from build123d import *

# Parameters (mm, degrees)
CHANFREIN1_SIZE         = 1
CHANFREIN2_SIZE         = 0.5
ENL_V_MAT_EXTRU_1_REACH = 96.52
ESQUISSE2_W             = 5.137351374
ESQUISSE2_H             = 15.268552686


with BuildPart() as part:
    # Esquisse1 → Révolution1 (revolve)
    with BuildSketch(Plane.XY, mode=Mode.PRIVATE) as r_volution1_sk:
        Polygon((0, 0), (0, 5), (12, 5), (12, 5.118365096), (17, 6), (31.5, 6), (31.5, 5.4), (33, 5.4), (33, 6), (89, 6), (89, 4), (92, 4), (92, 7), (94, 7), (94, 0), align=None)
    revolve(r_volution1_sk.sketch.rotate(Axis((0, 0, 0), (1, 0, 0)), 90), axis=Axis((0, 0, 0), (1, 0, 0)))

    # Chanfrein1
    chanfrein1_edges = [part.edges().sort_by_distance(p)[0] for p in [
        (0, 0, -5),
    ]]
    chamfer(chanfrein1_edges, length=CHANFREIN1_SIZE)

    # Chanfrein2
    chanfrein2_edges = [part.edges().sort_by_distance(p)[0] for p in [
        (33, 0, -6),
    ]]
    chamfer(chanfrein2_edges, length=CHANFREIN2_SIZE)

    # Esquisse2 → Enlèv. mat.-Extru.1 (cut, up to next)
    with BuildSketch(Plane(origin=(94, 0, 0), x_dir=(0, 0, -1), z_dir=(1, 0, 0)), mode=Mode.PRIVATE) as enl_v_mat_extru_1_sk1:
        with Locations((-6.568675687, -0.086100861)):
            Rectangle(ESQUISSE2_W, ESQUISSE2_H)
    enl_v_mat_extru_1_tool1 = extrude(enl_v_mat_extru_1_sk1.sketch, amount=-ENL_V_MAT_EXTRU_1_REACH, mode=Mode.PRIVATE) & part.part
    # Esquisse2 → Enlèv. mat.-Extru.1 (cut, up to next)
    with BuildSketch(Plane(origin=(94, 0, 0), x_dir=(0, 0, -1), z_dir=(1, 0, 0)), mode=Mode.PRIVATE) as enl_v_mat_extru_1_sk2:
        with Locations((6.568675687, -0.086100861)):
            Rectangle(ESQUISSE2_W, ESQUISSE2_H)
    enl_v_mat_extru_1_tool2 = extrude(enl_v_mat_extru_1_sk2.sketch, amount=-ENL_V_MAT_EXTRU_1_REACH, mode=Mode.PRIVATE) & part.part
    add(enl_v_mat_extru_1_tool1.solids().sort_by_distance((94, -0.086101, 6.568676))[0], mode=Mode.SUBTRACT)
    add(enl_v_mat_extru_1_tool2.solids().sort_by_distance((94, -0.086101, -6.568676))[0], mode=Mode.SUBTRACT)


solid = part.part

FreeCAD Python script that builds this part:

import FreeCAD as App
import Part
import Sketcher

V = App.Vector
Q = App.Units.Quantity


def edges_at(feature, points):
    """Names of the edges that pass closest to the given points."""
    edges = feature.Shape.Edges
    near = lambda p: min(range(len(edges)), key=lambda i: edges[i].distToShape(Part.Vertex(*p))[0])
    return sorted({f"Edge{near(p) + 1}" for p in points})

doc = App.newDocument("Part")
body = doc.addObject("PartDesign::Body", "Body")

# Sketch on XY plane
sketch1 = body.newObject("Sketcher::SketchObject", "Sketch")
sketch1.AttachmentSupport = (doc.getObject("XY_Plane"), [""])
sketch1.MapMode = "FlatFace"
sketch1.addGeometry([
    Part.LineSegment(V(0, 5, 0), V(0, 0, 0)),  # 0
    Part.LineSegment(V(0, 0, 0), V(94, 0, 0)),  # 1
    Part.LineSegment(V(94, 0, 0), V(94, 7, 0)),  # 2
    Part.LineSegment(V(94, 7, 0), V(92, 7, 0)),  # 3
    Part.LineSegment(V(92, 7, 0), V(92, 4, 0)),  # 4
    Part.LineSegment(V(92, 4, 0), V(89, 4, 0)),  # 5
    Part.LineSegment(V(89, 4, 0), V(89, 6, 0)),  # 6
    Part.LineSegment(V(89, 6, 0), V(33, 6, 0)),  # 7
    Part.LineSegment(V(33, 6, 0), V(33, 5.4, 0)),  # 8
    Part.LineSegment(V(33, 5.4, 0), V(31.5, 5.4, 0)),  # 9
    Part.LineSegment(V(31.5, 5.4, 0), V(31.5, 6, 0)),  # 10
    Part.LineSegment(V(31.5, 6, 0), V(17, 6, 0)),  # 11
    Part.LineSegment(V(17, 6, 0), V(12, 5.118365, 0)),  # 12
    Part.LineSegment(V(12, 5.118365, 0), V(12, 5, 0)),  # 13
    Part.LineSegment(V(12, 5, 0), V(0, 5, 0)),  # 14
], False)
sketch1.addConstraint([
    Sketcher.Constraint("Coincident", 0, 2, 1, 1),
    Sketcher.Constraint("Coincident", 1, 2, 2, 1),
    Sketcher.Constraint("Coincident", 2, 2, 3, 1),
    Sketcher.Constraint("Coincident", 3, 2, 4, 1),
    Sketcher.Constraint("Coincident", 4, 2, 5, 1),
    Sketcher.Constraint("Coincident", 5, 2, 6, 1),
    Sketcher.Constraint("Coincident", 6, 2, 7, 1),
    Sketcher.Constraint("Coincident", 7, 2, 8, 1),
    Sketcher.Constraint("Coincident", 8, 2, 9, 1),
    Sketcher.Constraint("Coincident", 9, 2, 10, 1),
    Sketcher.Constraint("Coincident", 10, 2, 11, 1),
    Sketcher.Constraint("Coincident", 11, 2, 12, 1),
    Sketcher.Constraint("Coincident", 12, 2, 13, 1),
    Sketcher.Constraint("Coincident", 13, 2, 14, 1),
    Sketcher.Constraint("Coincident", 14, 2, 0, 1),
    Sketcher.Constraint("Vertical", 0),
    Sketcher.Constraint("Horizontal", 1),
    Sketcher.Constraint("Vertical", 2),
    Sketcher.Constraint("Horizontal", 3),
    Sketcher.Constraint("Vertical", 4),
    Sketcher.Constraint("Horizontal", 5),
    Sketcher.Constraint("Vertical", 6),
    Sketcher.Constraint("Horizontal", 7),
    Sketcher.Constraint("Vertical", 8),
    Sketcher.Constraint("Horizontal", 9),
    Sketcher.Constraint("Vertical", 10),
    Sketcher.Constraint("Horizontal", 11),
    Sketcher.Constraint("Vertical", 13),
    Sketcher.Constraint("Horizontal", 14),
    Sketcher.Constraint("Coincident", 0, 2, -1, 1),
    Sketcher.Constraint("Horizontal", 7, 2, 10, 2),
    Sketcher.Constraint("Equal", 5, 4),
    Sketcher.Constraint("Equal", 3, 6),
    Sketcher.Constraint("DistanceX", 1, 1, 1, 2, 94.0),
    Sketcher.Constraint("DistanceX", 3, 2, 3, 1, 2.0),
    Sketcher.Constraint("DistanceX", 5, 2, 5, 1, 3.0),
    Sketcher.Constraint("DistanceX", 7, 2, 7, 1, 56.0),
    Sketcher.Constraint("DistanceX", 14, 2, 14, 1, 12.0),
    Sketcher.Constraint("DistanceY", 0, 2, 0, 1, 5.0),
    Sketcher.Constraint("DistanceY", 2, 1, 2, 2, 7.0),
    Sketcher.Constraint("Angle", 12, Q("-170 deg")),
    Sketcher.Constraint("DistanceX", 9, 2, 9, 1, 1.5),
    Sketcher.Constraint("DistanceX", 11, 2, 11, 1, 14.5),
    Sketcher.Constraint("DistanceY", 8, 2, 8, 1, 0.6),
])
revolution = body.newObject("PartDesign::Revolution", "Revolution")
revolution.Profile = sketch1
revolution.ReferenceAxis = (sketch1, ["H_Axis"])
revolution.Angle = 360
doc.recompute()

chamfer = body.newObject("PartDesign::Chamfer", "Chamfer")
chamfer.Base = (revolution, edges_at(revolution, [(0, 0, -5)]))
chamfer.Size = 1
doc.recompute()

chamfer2 = body.newObject("PartDesign::Chamfer", "Chamfer001")
chamfer2.Base = (chamfer, edges_at(chamfer, [(33, 0, -6)]))
chamfer2.Size = 0.5

# Sketch on YZ plane
sketch2 = body.newObject("Sketcher::SketchObject", "Sketch001")
sketch2.AttachmentSupport = (doc.getObject("YZ_Plane"), [""])
sketch2.MapMode = "FlatFace"
sketch2.AttachmentOffset = App.Placement(V(0, 0, 94), App.Rotation())
sketch2.addGeometry([
    Part.LineSegment(V(7.548175, 9.137351, 0), V(-7.720377, 9.137351, 0)),
    Part.LineSegment(V(-7.720377, 9.137351, 0), V(-7.720377, 4, 0)),
    Part.LineSegment(V(-7.720377, 4, 0), V(7.548175, 4, 0)),
    Part.LineSegment(V(7.548175, 4, 0), V(7.548175, 9.137351, 0)),
], False)
sketch2.addConstraint([
    Sketcher.Constraint("Coincident", 0, 2, 1, 1),
    Sketcher.Constraint("Coincident", 1, 2, 2, 1),
    Sketcher.Constraint("Coincident", 2, 2, 3, 1),
    Sketcher.Constraint("Coincident", 3, 2, 0, 1),
    Sketcher.Constraint("Horizontal", 0),
    Sketcher.Constraint("Vertical", 1),
    Sketcher.Constraint("Horizontal", 2),
    Sketcher.Constraint("Vertical", 3),
    Sketcher.Constraint("DistanceY", -1, 1, 1, 2, 4.0),
    Sketcher.Constraint("DistanceY", 1, 2, 1, 1, 5.137351),
    Sketcher.Constraint("DistanceX", 0, 2, 0, 1, 15.268553),
    Sketcher.Constraint("DistanceX", 0, 2, -1, 1, 7.720377),
])
pocket1 = body.newObject("PartDesign::Pocket", "Pocket")
pocket1.Profile = sketch2
pocket1.Type = "UpToFirst"

# Sketch on YZ plane
sketch3 = body.newObject("Sketcher::SketchObject", "Sketch002")
sketch3.AttachmentSupport = (doc.getObject("YZ_Plane"), [""])
sketch3.MapMode = "FlatFace"
sketch3.AttachmentOffset = App.Placement(V(0, 0, 94), App.Rotation())
sketch3.addGeometry([
    Part.LineSegment(V(7.548175, -4, 0), V(-7.720377, -4, 0)),
    Part.LineSegment(V(-7.720377, -4, 0), V(-7.720377, -9.137351, 0)),
    Part.LineSegment(V(-7.720377, -9.137351, 0), V(7.548175, -9.137351, 0)),
    Part.LineSegment(V(7.548175, -9.137351, 0), V(7.548175, -4, 0)),
], False)
sketch3.addConstraint([
    Sketcher.Constraint("Coincident", 0, 2, 1, 1),
    Sketcher.Constraint("Coincident", 1, 2, 2, 1),
    Sketcher.Constraint("Coincident", 2, 2, 3, 1),
    Sketcher.Constraint("Coincident", 3, 2, 0, 1),
    Sketcher.Constraint("Horizontal", 0),
    Sketcher.Constraint("Vertical", 1),
    Sketcher.Constraint("Horizontal", 2),
    Sketcher.Constraint("Vertical", 3),
    Sketcher.Constraint("DistanceY", 0, 2, -1, 1, 4.0),
    Sketcher.Constraint("DistanceY", 1, 2, 1, 1, 5.137351),
    Sketcher.Constraint("DistanceX", 0, 2, 0, 1, 15.268553),
    Sketcher.Constraint("DistanceX", 0, 2, -1, 1, 7.720377),
])
pocket2 = body.newObject("PartDesign::Pocket", "Pocket001")
pocket2.Profile = sketch3
pocket2.Type = "UpToFirst"

doc.recompute()
